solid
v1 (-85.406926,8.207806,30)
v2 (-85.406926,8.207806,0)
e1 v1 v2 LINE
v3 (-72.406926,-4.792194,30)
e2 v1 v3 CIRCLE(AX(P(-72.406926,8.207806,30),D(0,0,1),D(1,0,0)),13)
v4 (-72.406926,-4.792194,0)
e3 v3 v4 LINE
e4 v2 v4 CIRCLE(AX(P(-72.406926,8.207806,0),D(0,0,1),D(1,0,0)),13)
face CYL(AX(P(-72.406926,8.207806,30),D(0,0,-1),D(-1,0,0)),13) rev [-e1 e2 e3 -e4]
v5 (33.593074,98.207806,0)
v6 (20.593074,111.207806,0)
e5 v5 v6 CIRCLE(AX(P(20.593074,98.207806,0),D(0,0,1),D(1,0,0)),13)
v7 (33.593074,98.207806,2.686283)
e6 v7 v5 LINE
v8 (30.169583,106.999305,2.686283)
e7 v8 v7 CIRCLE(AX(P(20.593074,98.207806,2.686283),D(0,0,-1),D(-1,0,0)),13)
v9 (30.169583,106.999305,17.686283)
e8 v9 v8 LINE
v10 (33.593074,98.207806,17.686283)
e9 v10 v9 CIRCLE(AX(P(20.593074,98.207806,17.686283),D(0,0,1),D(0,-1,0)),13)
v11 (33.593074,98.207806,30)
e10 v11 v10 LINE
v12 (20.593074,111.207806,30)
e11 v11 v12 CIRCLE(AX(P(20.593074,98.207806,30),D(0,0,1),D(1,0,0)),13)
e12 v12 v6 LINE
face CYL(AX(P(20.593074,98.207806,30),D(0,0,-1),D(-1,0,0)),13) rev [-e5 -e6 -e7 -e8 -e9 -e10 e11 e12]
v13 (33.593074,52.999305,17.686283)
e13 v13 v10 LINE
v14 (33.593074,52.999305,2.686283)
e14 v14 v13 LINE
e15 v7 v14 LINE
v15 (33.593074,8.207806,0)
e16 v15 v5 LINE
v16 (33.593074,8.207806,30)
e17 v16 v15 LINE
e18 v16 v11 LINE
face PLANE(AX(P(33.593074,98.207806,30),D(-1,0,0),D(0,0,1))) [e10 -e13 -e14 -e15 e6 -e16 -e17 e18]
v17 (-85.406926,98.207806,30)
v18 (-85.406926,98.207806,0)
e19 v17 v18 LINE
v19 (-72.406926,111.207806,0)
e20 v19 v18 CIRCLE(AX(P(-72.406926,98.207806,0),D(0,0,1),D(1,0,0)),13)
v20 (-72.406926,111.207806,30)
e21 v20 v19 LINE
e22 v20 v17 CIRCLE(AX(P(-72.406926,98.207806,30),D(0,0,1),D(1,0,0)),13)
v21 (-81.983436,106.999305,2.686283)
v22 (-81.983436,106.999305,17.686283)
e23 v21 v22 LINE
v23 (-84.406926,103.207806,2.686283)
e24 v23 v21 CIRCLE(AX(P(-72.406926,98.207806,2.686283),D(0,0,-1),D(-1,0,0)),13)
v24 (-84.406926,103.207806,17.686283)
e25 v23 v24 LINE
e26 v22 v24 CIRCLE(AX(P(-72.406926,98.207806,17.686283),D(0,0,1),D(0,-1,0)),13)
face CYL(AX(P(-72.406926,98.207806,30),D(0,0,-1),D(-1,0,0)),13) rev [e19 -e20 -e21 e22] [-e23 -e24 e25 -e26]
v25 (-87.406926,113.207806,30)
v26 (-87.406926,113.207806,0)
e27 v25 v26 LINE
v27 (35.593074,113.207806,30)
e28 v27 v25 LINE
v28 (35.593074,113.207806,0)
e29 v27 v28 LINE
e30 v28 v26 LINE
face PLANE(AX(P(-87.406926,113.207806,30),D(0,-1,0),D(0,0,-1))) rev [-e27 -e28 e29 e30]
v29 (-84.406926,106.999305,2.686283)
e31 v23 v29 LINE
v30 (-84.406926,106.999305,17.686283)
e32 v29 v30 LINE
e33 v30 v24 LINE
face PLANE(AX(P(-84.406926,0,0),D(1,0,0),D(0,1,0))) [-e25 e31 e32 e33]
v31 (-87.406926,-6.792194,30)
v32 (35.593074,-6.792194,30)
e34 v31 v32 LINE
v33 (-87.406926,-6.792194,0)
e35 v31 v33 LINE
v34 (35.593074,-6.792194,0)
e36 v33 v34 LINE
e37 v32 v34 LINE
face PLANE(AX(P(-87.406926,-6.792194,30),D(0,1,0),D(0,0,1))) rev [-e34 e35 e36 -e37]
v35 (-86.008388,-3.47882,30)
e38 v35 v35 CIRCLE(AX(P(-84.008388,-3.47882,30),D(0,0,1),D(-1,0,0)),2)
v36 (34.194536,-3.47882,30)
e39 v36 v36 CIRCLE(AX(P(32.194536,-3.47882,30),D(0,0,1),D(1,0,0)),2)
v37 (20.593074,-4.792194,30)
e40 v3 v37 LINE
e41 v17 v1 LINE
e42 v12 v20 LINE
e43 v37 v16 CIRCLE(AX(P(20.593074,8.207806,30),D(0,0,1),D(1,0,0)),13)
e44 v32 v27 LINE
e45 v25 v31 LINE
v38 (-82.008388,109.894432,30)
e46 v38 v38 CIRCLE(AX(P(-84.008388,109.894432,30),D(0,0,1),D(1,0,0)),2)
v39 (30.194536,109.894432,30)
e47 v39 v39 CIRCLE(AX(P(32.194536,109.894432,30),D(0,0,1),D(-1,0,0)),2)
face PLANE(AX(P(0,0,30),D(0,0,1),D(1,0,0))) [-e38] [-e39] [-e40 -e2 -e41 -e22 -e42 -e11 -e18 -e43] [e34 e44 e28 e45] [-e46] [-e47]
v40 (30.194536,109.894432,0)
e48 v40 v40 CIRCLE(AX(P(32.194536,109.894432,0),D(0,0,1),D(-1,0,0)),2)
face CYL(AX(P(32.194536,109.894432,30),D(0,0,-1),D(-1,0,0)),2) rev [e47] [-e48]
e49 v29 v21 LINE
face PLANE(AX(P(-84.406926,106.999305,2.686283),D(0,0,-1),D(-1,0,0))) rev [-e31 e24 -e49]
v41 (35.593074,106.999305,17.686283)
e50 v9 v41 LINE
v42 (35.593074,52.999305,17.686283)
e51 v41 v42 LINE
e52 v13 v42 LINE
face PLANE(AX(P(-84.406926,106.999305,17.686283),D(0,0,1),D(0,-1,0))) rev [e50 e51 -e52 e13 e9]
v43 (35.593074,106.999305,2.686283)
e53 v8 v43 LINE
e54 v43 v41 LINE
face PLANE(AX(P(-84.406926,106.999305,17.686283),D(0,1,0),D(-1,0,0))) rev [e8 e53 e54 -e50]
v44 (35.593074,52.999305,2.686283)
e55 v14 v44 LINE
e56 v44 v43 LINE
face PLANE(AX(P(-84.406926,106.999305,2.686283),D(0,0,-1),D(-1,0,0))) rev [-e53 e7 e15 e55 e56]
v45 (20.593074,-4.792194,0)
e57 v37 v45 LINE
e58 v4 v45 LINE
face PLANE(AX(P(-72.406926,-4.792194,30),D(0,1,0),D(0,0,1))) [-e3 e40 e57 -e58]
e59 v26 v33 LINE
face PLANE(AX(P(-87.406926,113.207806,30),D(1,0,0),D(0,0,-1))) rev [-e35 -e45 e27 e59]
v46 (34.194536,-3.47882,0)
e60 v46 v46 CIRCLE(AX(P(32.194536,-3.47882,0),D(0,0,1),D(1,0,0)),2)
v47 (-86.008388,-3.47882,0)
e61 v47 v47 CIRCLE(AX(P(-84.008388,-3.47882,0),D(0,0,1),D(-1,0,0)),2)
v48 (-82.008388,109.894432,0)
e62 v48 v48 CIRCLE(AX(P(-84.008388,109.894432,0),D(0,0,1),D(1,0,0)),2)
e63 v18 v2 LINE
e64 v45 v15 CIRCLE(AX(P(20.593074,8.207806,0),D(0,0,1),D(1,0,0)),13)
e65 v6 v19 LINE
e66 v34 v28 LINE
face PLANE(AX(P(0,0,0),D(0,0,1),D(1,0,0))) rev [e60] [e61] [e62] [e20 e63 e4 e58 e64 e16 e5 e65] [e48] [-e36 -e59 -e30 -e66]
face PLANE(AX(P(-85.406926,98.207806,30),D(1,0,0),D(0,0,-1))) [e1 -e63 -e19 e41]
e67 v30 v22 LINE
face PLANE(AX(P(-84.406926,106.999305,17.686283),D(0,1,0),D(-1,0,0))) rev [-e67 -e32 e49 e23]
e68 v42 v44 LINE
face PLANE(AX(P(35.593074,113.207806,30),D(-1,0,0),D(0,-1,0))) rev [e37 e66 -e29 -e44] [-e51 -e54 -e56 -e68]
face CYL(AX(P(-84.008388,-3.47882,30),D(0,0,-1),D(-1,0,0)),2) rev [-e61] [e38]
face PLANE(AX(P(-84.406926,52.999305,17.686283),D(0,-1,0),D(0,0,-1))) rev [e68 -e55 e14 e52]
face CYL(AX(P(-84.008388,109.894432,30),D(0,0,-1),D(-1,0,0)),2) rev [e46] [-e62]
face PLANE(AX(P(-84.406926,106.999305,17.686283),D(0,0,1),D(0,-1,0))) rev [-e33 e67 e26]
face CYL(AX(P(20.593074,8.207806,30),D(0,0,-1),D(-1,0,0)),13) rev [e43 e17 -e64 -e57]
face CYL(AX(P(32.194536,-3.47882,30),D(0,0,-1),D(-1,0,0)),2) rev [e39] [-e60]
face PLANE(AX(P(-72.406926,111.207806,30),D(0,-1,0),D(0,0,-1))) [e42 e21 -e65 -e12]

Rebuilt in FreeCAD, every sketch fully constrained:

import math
import FreeCAD as App
import Part
import Sketcher

V = App.Vector


def add_polygon(sketch, points):
    """Adds a closed chain of lines whose ends are joined by coincident constraints."""
    first, n = sketch.GeometryCount, len(points)
    for a, b in zip(points, points[1:] + points[:1]):
        sketch.addGeometry(Part.LineSegment(App.Vector(*a, 0), App.Vector(*b, 0)), False)
    for i in range(n):
        sketch.addConstraint(Sketcher.Constraint("Coincident", first + i, 2, first + (i + 1) % n, 1))

doc = App.newDocument("Part")
params = doc.addObject("Spreadsheet::Sheet", "Params")
for row, (alias, value) in enumerate([
    ("sketch1_diameter", "4 mm"),
    ("sketch1_radius", "13 mm"),
    ("sketch1_width", "123 mm"),
    ("sketch1_width2", "93 mm"),
    ("sketch1_height", "120 mm"),
    ("pad1_length", "30 mm"),
    ("sketch2_width", "54 mm"),
    ("sketch2_height", "15 mm"),
    ("pocket1_length", "120 mm"),
], start=1):
    params.set(f"A{row}", alias)
    params.set(f"B{row}", "=" + value)
    params.setAlias(f"B{row}", alias)

body = doc.addObject("PartDesign::Body", "Body")

sketch1 = body.newObject("Sketcher::SketchObject", "Sketch")
sketch1.AttachmentSupport = (doc.getObject("XY_Plane"), [""])
sketch1.MapMode = "FlatFace"
add_polygon(sketch1, [(-87.406926, 113.207806), (-87.406926, -6.792194), (35.593074, -6.792194), (35.593074, 113.207806)])
sketch1.addGeometry(Part.Circle(V(-84.008388, -3.47882, 0), V(0, 0, 1), 2), False)
sketch1.addGeometry(Part.Circle(V(32.194536, -3.47882, 0), V(0, 0, 1), 2), False)
sketch1.addGeometry(Part.Circle(V(-84.008388, 109.894432, 0), V(0, 0, 1), 2), False)
sketch1.addGeometry(Part.ArcOfCircle(Part.Circle(V(-72.406926, 98.207806, 0), V(0, 0, 1), 13), math.radians(90), math.radians(180)), False)
sketch1.addGeometry(Part.LineSegment(V(-72.406926, 111.207806, 0), V(20.593074, 111.207806, 0)), False)
sketch1.addGeometry(Part.ArcOfCircle(Part.Circle(V(20.593074, 98.207806, 0), V(0, 0, 1), 13), math.radians(0), math.radians(90)), False)
sketch1.addGeometry(Part.LineSegment(V(33.593074, 98.207806, 0), V(33.593074, 8.207806, 0)), False)
sketch1.addGeometry(Part.ArcOfCircle(Part.Circle(V(20.593074, 8.207806, 0), V(0, 0, 1), 13), math.radians(-90), math.radians(0)), False)
sketch1.addGeometry(Part.LineSegment(V(20.593074, -4.792194, 0), V(-72.406926, -4.792194, 0)), False)
sketch1.addGeometry(Part.ArcOfCircle(Part.Circle(V(-72.406926, 8.207806, 0), V(0, 0, 1), 13), math.radians(180), math.radians(270)), False)
sketch1.addGeometry(Part.LineSegment(V(-85.406926, 8.207806, 0), V(-85.406926, 98.207806, 0)), False)
sketch1.addGeometry(Part.Circle(V(32.194536, 109.894432, 0), V(0, 0, 1), 2), False)
sketch1.addConstraint(Sketcher.Constraint("Tangent", 7, 1, 8, 1))
sketch1.addConstraint(Sketcher.Constraint("Tangent", 8, 2, 9, 2))
sketch1.addConstraint(Sketcher.Constraint("Tangent", 9, 1, 10, 1))
sketch1.addConstraint(Sketcher.Constraint("Tangent", 10, 2, 11, 2))
sketch1.addConstraint(Sketcher.Constraint("Tangent", 11, 1, 12, 1))
sketch1.addConstraint(Sketcher.Constraint("Tangent", 12, 2, 13, 2))
sketch1.addConstraint(Sketcher.Constraint("Tangent", 13, 1, 14, 1))
sketch1.addConstraint(Sketcher.Constraint("Tangent", 14, 2, 7, 2))
sketch1.addConstraint(Sketcher.Constraint("Vertical", 0))
sketch1.addConstraint(Sketcher.Constraint("Horizontal", 1))
sketch1.addConstraint(Sketcher.Constraint("Vertical", 2))
sketch1.addConstraint(Sketcher.Constraint("Horizontal", 3))
sketch1.addConstraint(Sketcher.Constraint("Horizontal", 8))
sketch1.addConstraint(Sketcher.Constraint("Vertical", 10))
sketch1.addConstraint(Sketcher.Constraint("Horizontal", 12))
sketch1.addConstraint(Sketcher.Constraint("Vertical", 14))
sketch1.addConstraint(Sketcher.Constraint("Equal", 4, 5))
sketch1.addConstraint(Sketcher.Constraint("Equal", 5, 6))
sketch1.addConstraint(Sketcher.Constraint("Equal", 7, 9))
sketch1.addConstraint(Sketcher.Constraint("Equal", 9, 11))
sketch1.addConstraint(Sketcher.Constraint("Equal", 11, 13))
sketch1.addConstraint(Sketcher.Constraint("Equal", 6, 15))
sketch1.addConstraint(Sketcher.Constraint("Horizontal", 4, 3, 5, 3))
sketch1.addConstraint(Sketcher.Constraint("Horizontal", 6, 3, 15, 3))
sketch1.addConstraint(Sketcher.Constraint("Vertical", 4, 3, 6, 3))
sketch1.addConstraint(Sketcher.Constraint("Vertical", 5, 3, 15, 3))
sketch1.addConstraint(Sketcher.Constraint("Diameter", 4, 4.0))
sketch1.addConstraint(Sketcher.Constraint("Radius", 7, 13.0))
sketch1.addConstraint(Sketcher.Constraint("DistanceX", 1, 1, 1, 2, 123.0))
sketch1.addConstraint(Sketcher.Constraint("DistanceX", 8, 1, 8, 2, 93.0))
sketch1.addConstraint(Sketcher.Constraint("DistanceY", 0, 2, 0, 1, 120.0))
sketch1.addConstraint(Sketcher.Constraint("DistanceY", 10, 2, 10, 1, 90.0))
sketch1.addConstraint(Sketcher.Constraint("DistanceX", 0, 2, 13, 3, 15.0))
sketch1.addConstraint(Sketcher.Constraint("DistanceY", 0, 2, 13, 3, 15.0))
sketch1.addConstraint(Sketcher.Constraint("DistanceX", 4, 3, -1, 1, 84.008388))
sketch1.addConstraint(Sketcher.Constraint("DistanceY", 4, 3, -1, 1, 3.47882))
sketch1.addConstraint(Sketcher.Constraint("DistanceY", -1, 1, 6, 3, 109.894432))
sketch1.addConstraint(Sketcher.Constraint("DistanceX", 6, 3, 7, 3, 11.601462))
sketch1.addConstraint(Sketcher.Constraint("DistanceX", 7, 3, 5, 3, 104.601462))
sketch1.addConstraint(Sketcher.Constraint("DistanceY", -1, 1, 7, 3, 98.207806))
sketch1.setExpression("Constraints[30]", "Params.sketch1_diameter")
sketch1.setExpression("Constraints[31]", "Params.sketch1_radius")
sketch1.setExpression("Constraints[32]", "Params.sketch1_width")
sketch1.setExpression("Constraints[33]", "Params.sketch1_width2")
sketch1.setExpression("Constraints[34]", "Params.sketch1_height")
pad1 = body.newObject("PartDesign::Pad", "Pad")
pad1.Profile = sketch1
pad1.setExpression("Length", "Params.pad1_length")

sketch2 = body.newObject("Sketcher::SketchObject", "Sketch001")
sketch2.AttachmentSupport = (doc.getObject("YZ_Plane"), [""])
sketch2.MapMode = "FlatFace"
sketch2.AttachmentOffset = App.Placement(V(0, 0, 35.593074), App.Rotation())
add_polygon(sketch2, [(106.999305, 17.686283), (52.999305, 17.686283), (52.999305, 2.686283), (106.999305, 2.686283)])
sketch2.addConstraint(Sketcher.Constraint("Horizontal", 0))
sketch2.addConstraint(Sketcher.Constraint("Vertical", 1))
sketch2.addConstraint(Sketcher.Constraint("Horizontal", 2))
sketch2.addConstraint(Sketcher.Constraint("Vertical", 3))
sketch2.addConstraint(Sketcher.Constraint("DistanceX", 0, 2, 0, 1, 54.0))
sketch2.addConstraint(Sketcher.Constraint("DistanceY", 1, 2, 1, 1, 15.0))
sketch2.addConstraint(Sketcher.Constraint("DistanceX", -1, 1, 0, 2, 52.999305))
sketch2.addConstraint(Sketcher.Constraint("DistanceY", -1, 1, 0, 2, 17.686283))
sketch2.setExpression("Constraints[8]", "Params.sketch2_width")
sketch2.setExpression("Constraints[9]", "Params.sketch2_height")
pocket1 = body.newObject("PartDesign::Pocket", "Pocket")
pocket1.Profile = sketch2
pocket1.setExpression("Length", "Params.pocket1_length")

doc.recompute()
